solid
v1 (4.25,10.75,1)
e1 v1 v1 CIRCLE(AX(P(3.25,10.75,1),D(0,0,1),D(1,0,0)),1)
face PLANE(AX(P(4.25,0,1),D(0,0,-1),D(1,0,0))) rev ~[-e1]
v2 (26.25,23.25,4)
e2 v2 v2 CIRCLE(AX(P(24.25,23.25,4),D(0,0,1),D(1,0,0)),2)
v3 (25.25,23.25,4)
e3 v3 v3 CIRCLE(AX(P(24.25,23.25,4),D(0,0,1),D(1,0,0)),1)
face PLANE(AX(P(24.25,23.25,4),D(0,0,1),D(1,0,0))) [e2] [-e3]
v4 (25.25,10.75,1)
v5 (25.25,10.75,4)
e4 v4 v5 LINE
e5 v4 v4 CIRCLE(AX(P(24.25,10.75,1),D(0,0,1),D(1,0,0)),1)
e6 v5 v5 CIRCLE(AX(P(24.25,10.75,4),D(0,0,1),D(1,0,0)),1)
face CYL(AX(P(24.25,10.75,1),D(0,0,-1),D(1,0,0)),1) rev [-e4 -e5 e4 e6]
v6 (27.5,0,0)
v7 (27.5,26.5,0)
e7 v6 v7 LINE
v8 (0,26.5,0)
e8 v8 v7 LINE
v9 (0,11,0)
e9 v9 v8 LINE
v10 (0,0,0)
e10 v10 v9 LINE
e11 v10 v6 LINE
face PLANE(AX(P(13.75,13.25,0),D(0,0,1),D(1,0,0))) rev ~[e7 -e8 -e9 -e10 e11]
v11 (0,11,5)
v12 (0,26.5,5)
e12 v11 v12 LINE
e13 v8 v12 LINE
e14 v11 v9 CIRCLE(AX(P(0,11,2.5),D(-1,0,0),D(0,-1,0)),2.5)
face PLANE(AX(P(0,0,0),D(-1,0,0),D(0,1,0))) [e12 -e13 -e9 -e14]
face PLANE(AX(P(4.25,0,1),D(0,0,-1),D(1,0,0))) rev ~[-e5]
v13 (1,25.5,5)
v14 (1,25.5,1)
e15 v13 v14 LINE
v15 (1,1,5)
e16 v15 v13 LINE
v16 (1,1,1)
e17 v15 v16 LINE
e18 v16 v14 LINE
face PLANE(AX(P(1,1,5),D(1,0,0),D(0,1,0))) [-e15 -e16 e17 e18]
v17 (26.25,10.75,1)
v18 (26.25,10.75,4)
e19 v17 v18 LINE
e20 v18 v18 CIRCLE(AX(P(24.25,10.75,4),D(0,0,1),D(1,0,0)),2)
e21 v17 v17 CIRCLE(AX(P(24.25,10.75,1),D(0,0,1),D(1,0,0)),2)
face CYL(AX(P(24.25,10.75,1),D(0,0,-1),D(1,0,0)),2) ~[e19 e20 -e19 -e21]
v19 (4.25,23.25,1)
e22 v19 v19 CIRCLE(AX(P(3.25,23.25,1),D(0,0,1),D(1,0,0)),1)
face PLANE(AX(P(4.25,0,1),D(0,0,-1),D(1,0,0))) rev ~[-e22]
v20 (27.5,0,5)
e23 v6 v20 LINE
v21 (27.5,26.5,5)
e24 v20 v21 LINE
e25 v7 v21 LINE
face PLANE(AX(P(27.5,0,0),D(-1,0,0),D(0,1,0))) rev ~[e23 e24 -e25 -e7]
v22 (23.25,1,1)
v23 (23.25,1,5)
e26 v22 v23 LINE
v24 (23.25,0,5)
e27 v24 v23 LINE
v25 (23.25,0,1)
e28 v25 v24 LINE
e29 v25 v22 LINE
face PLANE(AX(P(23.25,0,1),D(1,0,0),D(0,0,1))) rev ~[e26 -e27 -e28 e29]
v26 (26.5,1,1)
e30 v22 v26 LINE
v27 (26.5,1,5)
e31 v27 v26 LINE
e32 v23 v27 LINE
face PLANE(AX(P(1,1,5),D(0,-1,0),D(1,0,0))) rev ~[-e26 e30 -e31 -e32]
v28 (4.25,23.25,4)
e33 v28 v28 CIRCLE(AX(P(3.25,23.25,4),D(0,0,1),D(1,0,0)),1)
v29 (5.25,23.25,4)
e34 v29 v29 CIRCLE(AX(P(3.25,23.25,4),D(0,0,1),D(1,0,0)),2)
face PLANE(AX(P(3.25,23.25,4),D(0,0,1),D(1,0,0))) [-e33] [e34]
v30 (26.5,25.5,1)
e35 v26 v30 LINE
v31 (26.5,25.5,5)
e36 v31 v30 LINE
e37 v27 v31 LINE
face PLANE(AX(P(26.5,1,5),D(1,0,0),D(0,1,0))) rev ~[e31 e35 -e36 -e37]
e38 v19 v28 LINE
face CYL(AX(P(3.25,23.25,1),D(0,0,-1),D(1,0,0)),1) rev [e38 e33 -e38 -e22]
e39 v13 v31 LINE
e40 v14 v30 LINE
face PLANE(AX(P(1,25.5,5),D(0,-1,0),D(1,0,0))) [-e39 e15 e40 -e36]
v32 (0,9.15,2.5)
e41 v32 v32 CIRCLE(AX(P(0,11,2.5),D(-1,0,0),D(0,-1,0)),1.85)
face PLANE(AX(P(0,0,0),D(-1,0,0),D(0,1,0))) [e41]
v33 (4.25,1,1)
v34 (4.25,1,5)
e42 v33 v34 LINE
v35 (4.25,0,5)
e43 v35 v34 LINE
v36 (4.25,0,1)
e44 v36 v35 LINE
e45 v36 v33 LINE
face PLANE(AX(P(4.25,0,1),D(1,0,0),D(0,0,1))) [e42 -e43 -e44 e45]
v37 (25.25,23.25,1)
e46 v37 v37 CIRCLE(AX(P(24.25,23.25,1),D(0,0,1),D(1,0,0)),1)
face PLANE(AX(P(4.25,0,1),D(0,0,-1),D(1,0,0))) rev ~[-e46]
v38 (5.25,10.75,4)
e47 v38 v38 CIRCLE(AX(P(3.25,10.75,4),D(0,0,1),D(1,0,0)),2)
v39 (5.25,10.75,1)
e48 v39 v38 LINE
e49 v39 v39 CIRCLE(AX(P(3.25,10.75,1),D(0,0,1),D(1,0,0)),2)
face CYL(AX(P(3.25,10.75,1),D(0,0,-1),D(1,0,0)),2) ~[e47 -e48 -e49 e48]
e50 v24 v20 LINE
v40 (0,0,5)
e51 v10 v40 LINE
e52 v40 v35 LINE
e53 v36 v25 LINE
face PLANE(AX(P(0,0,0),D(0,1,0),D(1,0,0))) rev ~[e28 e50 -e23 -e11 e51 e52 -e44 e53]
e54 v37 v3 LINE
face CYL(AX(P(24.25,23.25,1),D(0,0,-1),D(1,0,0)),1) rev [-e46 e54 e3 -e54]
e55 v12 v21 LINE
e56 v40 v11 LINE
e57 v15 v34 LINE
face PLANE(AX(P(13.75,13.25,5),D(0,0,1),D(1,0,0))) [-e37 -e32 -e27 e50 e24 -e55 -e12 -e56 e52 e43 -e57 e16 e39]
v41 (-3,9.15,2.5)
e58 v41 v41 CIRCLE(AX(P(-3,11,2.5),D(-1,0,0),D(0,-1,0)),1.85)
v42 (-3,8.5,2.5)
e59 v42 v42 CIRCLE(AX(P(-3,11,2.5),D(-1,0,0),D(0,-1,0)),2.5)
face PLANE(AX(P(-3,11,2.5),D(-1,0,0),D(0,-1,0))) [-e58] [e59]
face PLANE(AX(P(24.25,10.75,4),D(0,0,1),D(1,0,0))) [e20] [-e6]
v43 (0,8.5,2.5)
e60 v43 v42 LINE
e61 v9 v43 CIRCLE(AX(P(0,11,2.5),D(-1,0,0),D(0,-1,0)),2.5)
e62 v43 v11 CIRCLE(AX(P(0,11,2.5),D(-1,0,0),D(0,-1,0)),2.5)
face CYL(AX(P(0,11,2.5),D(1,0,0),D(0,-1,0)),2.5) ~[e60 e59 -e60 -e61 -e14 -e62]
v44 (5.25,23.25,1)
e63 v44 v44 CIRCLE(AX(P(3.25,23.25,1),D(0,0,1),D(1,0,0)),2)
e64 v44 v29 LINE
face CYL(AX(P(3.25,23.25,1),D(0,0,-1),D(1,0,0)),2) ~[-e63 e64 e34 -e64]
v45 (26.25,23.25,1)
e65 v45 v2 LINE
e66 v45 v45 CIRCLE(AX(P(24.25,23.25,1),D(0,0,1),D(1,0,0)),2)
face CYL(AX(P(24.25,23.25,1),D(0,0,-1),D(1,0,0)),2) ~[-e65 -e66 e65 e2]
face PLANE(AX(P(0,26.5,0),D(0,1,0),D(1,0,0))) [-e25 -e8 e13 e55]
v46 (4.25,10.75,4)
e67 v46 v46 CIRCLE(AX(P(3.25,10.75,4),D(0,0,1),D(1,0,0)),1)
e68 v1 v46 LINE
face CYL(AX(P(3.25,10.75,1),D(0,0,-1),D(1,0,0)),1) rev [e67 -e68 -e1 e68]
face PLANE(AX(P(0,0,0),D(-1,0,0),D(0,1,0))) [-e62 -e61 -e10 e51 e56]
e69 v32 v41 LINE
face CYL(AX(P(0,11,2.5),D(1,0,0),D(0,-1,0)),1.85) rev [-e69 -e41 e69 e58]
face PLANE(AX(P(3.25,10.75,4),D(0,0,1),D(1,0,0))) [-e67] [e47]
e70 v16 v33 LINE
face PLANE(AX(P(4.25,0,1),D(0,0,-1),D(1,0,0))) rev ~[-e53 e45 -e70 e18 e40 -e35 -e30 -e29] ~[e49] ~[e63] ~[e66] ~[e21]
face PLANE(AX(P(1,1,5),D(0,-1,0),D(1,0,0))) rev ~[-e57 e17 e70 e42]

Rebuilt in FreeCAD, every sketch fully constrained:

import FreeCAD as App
import Part
import Sketcher
Q = App.Units.Quantity

doc = App.newDocument("Part")
body = doc.addObject("PartDesign::Body", "Body")

# Sketch on XY plane
sketch1 = body.newObject("Sketcher::SketchObject", "Sketch")
sketch1.AttachmentSupport = (doc.getObject("XY_Plane"), [""])
sketch1.MapMode = "FlatFace"
sketch1.addGeometry([
    Part.LineSegment(App.Vector(0, 26.5, 0), App.Vector(0, 0, 0)),
    Part.LineSegment(App.Vector(0, 0, 0), App.Vector(27.5, 0, 0)),
    Part.LineSegment(App.Vector(27.5, 0, 0), App.Vector(27.5, 26.5, 0)),
    Part.LineSegment(App.Vector(27.5, 26.5, 0), App.Vector(0, 26.5, 0)),
], False)
sketch1.addConstraint([
    Sketcher.Constraint("Coincident", 0, 2, 1, 1),
    Sketcher.Constraint("Coincident", 1, 2, 2, 1),
    Sketcher.Constraint("Coincident", 2, 2, 3, 1),
    Sketcher.Constraint("Coincident", 3, 2, 0, 1),
    Sketcher.Constraint("Vertical", 0),
    Sketcher.Constraint("Horizontal", 1),
    Sketcher.Constraint("Vertical", 2),
    Sketcher.Constraint("Horizontal", 3),
    Sketcher.Constraint("Coincident", 0, 2, -1, 1),
    Sketcher.Constraint("DistanceX", 1, 1, 1, 2, Q("27.5 mm")),
    Sketcher.Constraint("DistanceY", 0, 2, 0, 1, Q("26.5 mm")),
])
pad1 = body.newObject("PartDesign::Pad", "Pad")
pad1.Profile = sketch1
pad1.Length = 5

# Sketch on XY plane
sketch2 = body.newObject("Sketcher::SketchObject", "Sketch001")
sketch2.AttachmentSupport = (doc.getObject("XY_Plane"), [""])
sketch2.MapMode = "FlatFace"
sketch2.AttachmentOffset = App.Placement(App.Vector(0, 0, 5), App.Rotation())
sketch2.addGeometry([
    Part.LineSegment(App.Vector(1, 25.5, 0), App.Vector(1, 1, 0)),
    Part.LineSegment(App.Vector(1, 1, 0), App.Vector(26.5, 1, 0)),
    Part.LineSegment(App.Vector(26.5, 1, 0), App.Vector(26.5, 25.5, 0)),
    Part.LineSegment(App.Vector(26.5, 25.5, 0), App.Vector(1, 25.5, 0)),
], False)
sketch2.addConstraint([
    Sketcher.Constraint("Coincident", 0, 2, 1, 1),
    Sketcher.Constraint("Coincident", 1, 2, 2, 1),
    Sketcher.Constraint("Coincident", 2, 2, 3, 1),
    Sketcher.Constraint("Coincident", 3, 2, 0, 1),
    Sketcher.Constraint("Vertical", 0),
    Sketcher.Constraint("Horizontal", 1),
    Sketcher.Constraint("Vertical", 2),
    Sketcher.Constraint("Horizontal", 3),
    Sketcher.Constraint("DistanceX", 1, 1, 1, 2, Q("25.5 mm")),
    Sketcher.Constraint("DistanceY", 0, 2, 0, 1, Q("24.5 mm")),
    Sketcher.Constraint("DistanceX", -1, 1, 0, 2, Q("1 mm")),
    Sketcher.Constraint("DistanceY", -1, 1, 0, 2, Q("1 mm")),
])
pocket1 = body.newObject("PartDesign::Pocket", "Pocket")
pocket1.Profile = sketch2
pocket1.Length = 4

# Sketch on XZ plane
sketch3 = body.newObject("Sketcher::SketchObject", "Sketch002")
sketch3.AttachmentSupport = (doc.getObject("XZ_Plane"), [""])
sketch3.MapMode = "FlatFace"
sketch3.addGeometry([
    Part.LineSegment(App.Vector(4.25, 5, 0), App.Vector(4.25, 1, 0)),
    Part.LineSegment(App.Vector(4.25, 1, 0), App.Vector(23.25, 1, 0)),
    Part.LineSegment(App.Vector(23.25, 1, 0), App.Vector(23.25, 5, 0)),
    Part.LineSegment(App.Vector(23.25, 5, 0), App.Vector(4.25, 5, 0)),
], False)
sketch3.addConstraint([
    Sketcher.Constraint("Coincident", 0, 2, 1, 1),
    Sketcher.Constraint("Coincident", 1, 2, 2, 1),
    Sketcher.Constraint("Coincident", 2, 2, 3, 1),
    Sketcher.Constraint("Coincident", 3, 2, 0, 1),
    Sketcher.Constraint("Vertical", 0),
    Sketcher.Constraint("Horizontal", 1),
    Sketcher.Constraint("Vertical", 2),
    Sketcher.Constraint("Horizontal", 3),
    Sketcher.Constraint("DistanceX", 1, 1, 1, 2, Q("19 mm")),
    Sketcher.Constraint("DistanceY", 0, 2, 0, 1, Q("4 mm")),
    Sketcher.Constraint("DistanceY", -1, 1, 0, 2, Q("1 mm")),
    Sketcher.Constraint("DistanceX", -1, 1, 0, 2, Q("4.25 mm")),
])
pocket2 = body.newObject("PartDesign::Pocket", "Pocket001")
pocket2.Profile = sketch3
pocket2.Length = 1

# Sketch on XY plane
sketch4 = body.newObject("Sketcher::SketchObject", "Sketch003")
sketch4.AttachmentSupport = (doc.getObject("XY_Plane"), [""])
sketch4.MapMode = "FlatFace"
sketch4.AttachmentOffset = App.Placement(App.Vector(0, 0, 1), App.Rotation())
sketch4.addGeometry([
    Part.Circle(App.Vector(24.25, 10.75, 0), App.Vector(0, 0, 1), 2),  # 0
    Part.Circle(App.Vector(24.25, 10.75, 0), App.Vector(0, 0, 1), 1),  # 1
    Part.Circle(App.Vector(3.25, 10.75, 0), App.Vector(0, 0, 1), 2),  # 2
    Part.Circle(App.Vector(3.25, 10.75, 0), App.Vector(0, 0, 1), 1),  # 3
    Part.Circle(App.Vector(3.25, 23.25, 0), App.Vector(0, 0, 1), 2),  # 4
    Part.Circle(App.Vector(3.25, 23.25, 0), App.Vector(0, 0, 1), 1),  # 5
    Part.Circle(App.Vector(24.25, 23.25, 0), App.Vector(0, 0, 1), 2),  # 6
    Part.Circle(App.Vector(24.25, 23.25, 0), App.Vector(0, 0, 1), 1),  # 7
], False)
sketch4.addConstraint([
    Sketcher.Constraint("Coincident", 1, 3, 0, 3),
    Sketcher.Constraint("Coincident", 3, 3, 2, 3),
    Sketcher.Constraint("Coincident", 5, 3, 4, 3),
    Sketcher.Constraint("Coincident", 7, 3, 6, 3),
    Sketcher.Constraint("Equal", 0, 2),
    Sketcher.Constraint("Equal", 1, 3),
    Sketcher.Constraint("Equal", 2, 4),
    Sketcher.Constraint("Equal", 3, 5),
    Sketcher.Constraint("Equal", 4, 6),
    Sketcher.Constraint("Equal", 5, 7),
    Sketcher.Constraint("Horizontal", 1, 3, 2, 3),
    Sketcher.Constraint("Horizontal", 5, 3, 6, 3),
    Sketcher.Constraint("Vertical", 3, 3, 4, 3),
    Sketcher.Constraint("Vertical", 1, 3, 6, 3),
    Sketcher.Constraint("Diameter", 0, Q("4 mm")),
    Sketcher.Constraint("Diameter", 1, Q("2 mm")),
    Sketcher.Constraint("DistanceX", 2, 3, 0, 3, Q("21 mm")),
    Sketcher.Constraint("DistanceY", 2, 3, 4, 3, Q("12.5 mm")),
    Sketcher.Constraint("DistanceX", -1, 1, 0, 3, Q("24.25 mm")),
    Sketcher.Constraint("DistanceY", -1, 1, 0, 3, Q("10.75 mm")),
])
pad2 = body.newObject("PartDesign::Pad", "Pad001")
pad2.Profile = sketch4
pad2.Length = 3

# Sketch on YZ plane
sketch5 = body.newObject("Sketcher::SketchObject", "Sketch004")
sketch5.AttachmentSupport = (doc.getObject("YZ_Plane"), [""])
sketch5.MapMode = "FlatFace"
sketch5.addGeometry([
    Part.Circle(App.Vector(11, 2.5, 0), App.Vector(0, 0, 1), 2.5),
    Part.Circle(App.Vector(11, 2.5, 0), App.Vector(0, 0, 1), 1.85),
], False)
sketch5.addConstraint([
    Sketcher.Constraint("Coincident", 1, 3, 0, 3),
    Sketcher.Constraint("Diameter", 0, Q("5 mm")),
    Sketcher.Constraint("Diameter", 1, Q("3.7 mm")),
    Sketcher.Constraint("DistanceX", -1, 1, 0, 3, Q("11 mm")),
    Sketcher.Constraint("DistanceY", -1, 1, 0, 3, Q("2.5 mm")),
])
pad3 = body.newObject("PartDesign::Pad", "Pad002")
pad3.Profile = sketch5
pad3.Length = 3
pad3.Reversed = True

doc.recompute()
